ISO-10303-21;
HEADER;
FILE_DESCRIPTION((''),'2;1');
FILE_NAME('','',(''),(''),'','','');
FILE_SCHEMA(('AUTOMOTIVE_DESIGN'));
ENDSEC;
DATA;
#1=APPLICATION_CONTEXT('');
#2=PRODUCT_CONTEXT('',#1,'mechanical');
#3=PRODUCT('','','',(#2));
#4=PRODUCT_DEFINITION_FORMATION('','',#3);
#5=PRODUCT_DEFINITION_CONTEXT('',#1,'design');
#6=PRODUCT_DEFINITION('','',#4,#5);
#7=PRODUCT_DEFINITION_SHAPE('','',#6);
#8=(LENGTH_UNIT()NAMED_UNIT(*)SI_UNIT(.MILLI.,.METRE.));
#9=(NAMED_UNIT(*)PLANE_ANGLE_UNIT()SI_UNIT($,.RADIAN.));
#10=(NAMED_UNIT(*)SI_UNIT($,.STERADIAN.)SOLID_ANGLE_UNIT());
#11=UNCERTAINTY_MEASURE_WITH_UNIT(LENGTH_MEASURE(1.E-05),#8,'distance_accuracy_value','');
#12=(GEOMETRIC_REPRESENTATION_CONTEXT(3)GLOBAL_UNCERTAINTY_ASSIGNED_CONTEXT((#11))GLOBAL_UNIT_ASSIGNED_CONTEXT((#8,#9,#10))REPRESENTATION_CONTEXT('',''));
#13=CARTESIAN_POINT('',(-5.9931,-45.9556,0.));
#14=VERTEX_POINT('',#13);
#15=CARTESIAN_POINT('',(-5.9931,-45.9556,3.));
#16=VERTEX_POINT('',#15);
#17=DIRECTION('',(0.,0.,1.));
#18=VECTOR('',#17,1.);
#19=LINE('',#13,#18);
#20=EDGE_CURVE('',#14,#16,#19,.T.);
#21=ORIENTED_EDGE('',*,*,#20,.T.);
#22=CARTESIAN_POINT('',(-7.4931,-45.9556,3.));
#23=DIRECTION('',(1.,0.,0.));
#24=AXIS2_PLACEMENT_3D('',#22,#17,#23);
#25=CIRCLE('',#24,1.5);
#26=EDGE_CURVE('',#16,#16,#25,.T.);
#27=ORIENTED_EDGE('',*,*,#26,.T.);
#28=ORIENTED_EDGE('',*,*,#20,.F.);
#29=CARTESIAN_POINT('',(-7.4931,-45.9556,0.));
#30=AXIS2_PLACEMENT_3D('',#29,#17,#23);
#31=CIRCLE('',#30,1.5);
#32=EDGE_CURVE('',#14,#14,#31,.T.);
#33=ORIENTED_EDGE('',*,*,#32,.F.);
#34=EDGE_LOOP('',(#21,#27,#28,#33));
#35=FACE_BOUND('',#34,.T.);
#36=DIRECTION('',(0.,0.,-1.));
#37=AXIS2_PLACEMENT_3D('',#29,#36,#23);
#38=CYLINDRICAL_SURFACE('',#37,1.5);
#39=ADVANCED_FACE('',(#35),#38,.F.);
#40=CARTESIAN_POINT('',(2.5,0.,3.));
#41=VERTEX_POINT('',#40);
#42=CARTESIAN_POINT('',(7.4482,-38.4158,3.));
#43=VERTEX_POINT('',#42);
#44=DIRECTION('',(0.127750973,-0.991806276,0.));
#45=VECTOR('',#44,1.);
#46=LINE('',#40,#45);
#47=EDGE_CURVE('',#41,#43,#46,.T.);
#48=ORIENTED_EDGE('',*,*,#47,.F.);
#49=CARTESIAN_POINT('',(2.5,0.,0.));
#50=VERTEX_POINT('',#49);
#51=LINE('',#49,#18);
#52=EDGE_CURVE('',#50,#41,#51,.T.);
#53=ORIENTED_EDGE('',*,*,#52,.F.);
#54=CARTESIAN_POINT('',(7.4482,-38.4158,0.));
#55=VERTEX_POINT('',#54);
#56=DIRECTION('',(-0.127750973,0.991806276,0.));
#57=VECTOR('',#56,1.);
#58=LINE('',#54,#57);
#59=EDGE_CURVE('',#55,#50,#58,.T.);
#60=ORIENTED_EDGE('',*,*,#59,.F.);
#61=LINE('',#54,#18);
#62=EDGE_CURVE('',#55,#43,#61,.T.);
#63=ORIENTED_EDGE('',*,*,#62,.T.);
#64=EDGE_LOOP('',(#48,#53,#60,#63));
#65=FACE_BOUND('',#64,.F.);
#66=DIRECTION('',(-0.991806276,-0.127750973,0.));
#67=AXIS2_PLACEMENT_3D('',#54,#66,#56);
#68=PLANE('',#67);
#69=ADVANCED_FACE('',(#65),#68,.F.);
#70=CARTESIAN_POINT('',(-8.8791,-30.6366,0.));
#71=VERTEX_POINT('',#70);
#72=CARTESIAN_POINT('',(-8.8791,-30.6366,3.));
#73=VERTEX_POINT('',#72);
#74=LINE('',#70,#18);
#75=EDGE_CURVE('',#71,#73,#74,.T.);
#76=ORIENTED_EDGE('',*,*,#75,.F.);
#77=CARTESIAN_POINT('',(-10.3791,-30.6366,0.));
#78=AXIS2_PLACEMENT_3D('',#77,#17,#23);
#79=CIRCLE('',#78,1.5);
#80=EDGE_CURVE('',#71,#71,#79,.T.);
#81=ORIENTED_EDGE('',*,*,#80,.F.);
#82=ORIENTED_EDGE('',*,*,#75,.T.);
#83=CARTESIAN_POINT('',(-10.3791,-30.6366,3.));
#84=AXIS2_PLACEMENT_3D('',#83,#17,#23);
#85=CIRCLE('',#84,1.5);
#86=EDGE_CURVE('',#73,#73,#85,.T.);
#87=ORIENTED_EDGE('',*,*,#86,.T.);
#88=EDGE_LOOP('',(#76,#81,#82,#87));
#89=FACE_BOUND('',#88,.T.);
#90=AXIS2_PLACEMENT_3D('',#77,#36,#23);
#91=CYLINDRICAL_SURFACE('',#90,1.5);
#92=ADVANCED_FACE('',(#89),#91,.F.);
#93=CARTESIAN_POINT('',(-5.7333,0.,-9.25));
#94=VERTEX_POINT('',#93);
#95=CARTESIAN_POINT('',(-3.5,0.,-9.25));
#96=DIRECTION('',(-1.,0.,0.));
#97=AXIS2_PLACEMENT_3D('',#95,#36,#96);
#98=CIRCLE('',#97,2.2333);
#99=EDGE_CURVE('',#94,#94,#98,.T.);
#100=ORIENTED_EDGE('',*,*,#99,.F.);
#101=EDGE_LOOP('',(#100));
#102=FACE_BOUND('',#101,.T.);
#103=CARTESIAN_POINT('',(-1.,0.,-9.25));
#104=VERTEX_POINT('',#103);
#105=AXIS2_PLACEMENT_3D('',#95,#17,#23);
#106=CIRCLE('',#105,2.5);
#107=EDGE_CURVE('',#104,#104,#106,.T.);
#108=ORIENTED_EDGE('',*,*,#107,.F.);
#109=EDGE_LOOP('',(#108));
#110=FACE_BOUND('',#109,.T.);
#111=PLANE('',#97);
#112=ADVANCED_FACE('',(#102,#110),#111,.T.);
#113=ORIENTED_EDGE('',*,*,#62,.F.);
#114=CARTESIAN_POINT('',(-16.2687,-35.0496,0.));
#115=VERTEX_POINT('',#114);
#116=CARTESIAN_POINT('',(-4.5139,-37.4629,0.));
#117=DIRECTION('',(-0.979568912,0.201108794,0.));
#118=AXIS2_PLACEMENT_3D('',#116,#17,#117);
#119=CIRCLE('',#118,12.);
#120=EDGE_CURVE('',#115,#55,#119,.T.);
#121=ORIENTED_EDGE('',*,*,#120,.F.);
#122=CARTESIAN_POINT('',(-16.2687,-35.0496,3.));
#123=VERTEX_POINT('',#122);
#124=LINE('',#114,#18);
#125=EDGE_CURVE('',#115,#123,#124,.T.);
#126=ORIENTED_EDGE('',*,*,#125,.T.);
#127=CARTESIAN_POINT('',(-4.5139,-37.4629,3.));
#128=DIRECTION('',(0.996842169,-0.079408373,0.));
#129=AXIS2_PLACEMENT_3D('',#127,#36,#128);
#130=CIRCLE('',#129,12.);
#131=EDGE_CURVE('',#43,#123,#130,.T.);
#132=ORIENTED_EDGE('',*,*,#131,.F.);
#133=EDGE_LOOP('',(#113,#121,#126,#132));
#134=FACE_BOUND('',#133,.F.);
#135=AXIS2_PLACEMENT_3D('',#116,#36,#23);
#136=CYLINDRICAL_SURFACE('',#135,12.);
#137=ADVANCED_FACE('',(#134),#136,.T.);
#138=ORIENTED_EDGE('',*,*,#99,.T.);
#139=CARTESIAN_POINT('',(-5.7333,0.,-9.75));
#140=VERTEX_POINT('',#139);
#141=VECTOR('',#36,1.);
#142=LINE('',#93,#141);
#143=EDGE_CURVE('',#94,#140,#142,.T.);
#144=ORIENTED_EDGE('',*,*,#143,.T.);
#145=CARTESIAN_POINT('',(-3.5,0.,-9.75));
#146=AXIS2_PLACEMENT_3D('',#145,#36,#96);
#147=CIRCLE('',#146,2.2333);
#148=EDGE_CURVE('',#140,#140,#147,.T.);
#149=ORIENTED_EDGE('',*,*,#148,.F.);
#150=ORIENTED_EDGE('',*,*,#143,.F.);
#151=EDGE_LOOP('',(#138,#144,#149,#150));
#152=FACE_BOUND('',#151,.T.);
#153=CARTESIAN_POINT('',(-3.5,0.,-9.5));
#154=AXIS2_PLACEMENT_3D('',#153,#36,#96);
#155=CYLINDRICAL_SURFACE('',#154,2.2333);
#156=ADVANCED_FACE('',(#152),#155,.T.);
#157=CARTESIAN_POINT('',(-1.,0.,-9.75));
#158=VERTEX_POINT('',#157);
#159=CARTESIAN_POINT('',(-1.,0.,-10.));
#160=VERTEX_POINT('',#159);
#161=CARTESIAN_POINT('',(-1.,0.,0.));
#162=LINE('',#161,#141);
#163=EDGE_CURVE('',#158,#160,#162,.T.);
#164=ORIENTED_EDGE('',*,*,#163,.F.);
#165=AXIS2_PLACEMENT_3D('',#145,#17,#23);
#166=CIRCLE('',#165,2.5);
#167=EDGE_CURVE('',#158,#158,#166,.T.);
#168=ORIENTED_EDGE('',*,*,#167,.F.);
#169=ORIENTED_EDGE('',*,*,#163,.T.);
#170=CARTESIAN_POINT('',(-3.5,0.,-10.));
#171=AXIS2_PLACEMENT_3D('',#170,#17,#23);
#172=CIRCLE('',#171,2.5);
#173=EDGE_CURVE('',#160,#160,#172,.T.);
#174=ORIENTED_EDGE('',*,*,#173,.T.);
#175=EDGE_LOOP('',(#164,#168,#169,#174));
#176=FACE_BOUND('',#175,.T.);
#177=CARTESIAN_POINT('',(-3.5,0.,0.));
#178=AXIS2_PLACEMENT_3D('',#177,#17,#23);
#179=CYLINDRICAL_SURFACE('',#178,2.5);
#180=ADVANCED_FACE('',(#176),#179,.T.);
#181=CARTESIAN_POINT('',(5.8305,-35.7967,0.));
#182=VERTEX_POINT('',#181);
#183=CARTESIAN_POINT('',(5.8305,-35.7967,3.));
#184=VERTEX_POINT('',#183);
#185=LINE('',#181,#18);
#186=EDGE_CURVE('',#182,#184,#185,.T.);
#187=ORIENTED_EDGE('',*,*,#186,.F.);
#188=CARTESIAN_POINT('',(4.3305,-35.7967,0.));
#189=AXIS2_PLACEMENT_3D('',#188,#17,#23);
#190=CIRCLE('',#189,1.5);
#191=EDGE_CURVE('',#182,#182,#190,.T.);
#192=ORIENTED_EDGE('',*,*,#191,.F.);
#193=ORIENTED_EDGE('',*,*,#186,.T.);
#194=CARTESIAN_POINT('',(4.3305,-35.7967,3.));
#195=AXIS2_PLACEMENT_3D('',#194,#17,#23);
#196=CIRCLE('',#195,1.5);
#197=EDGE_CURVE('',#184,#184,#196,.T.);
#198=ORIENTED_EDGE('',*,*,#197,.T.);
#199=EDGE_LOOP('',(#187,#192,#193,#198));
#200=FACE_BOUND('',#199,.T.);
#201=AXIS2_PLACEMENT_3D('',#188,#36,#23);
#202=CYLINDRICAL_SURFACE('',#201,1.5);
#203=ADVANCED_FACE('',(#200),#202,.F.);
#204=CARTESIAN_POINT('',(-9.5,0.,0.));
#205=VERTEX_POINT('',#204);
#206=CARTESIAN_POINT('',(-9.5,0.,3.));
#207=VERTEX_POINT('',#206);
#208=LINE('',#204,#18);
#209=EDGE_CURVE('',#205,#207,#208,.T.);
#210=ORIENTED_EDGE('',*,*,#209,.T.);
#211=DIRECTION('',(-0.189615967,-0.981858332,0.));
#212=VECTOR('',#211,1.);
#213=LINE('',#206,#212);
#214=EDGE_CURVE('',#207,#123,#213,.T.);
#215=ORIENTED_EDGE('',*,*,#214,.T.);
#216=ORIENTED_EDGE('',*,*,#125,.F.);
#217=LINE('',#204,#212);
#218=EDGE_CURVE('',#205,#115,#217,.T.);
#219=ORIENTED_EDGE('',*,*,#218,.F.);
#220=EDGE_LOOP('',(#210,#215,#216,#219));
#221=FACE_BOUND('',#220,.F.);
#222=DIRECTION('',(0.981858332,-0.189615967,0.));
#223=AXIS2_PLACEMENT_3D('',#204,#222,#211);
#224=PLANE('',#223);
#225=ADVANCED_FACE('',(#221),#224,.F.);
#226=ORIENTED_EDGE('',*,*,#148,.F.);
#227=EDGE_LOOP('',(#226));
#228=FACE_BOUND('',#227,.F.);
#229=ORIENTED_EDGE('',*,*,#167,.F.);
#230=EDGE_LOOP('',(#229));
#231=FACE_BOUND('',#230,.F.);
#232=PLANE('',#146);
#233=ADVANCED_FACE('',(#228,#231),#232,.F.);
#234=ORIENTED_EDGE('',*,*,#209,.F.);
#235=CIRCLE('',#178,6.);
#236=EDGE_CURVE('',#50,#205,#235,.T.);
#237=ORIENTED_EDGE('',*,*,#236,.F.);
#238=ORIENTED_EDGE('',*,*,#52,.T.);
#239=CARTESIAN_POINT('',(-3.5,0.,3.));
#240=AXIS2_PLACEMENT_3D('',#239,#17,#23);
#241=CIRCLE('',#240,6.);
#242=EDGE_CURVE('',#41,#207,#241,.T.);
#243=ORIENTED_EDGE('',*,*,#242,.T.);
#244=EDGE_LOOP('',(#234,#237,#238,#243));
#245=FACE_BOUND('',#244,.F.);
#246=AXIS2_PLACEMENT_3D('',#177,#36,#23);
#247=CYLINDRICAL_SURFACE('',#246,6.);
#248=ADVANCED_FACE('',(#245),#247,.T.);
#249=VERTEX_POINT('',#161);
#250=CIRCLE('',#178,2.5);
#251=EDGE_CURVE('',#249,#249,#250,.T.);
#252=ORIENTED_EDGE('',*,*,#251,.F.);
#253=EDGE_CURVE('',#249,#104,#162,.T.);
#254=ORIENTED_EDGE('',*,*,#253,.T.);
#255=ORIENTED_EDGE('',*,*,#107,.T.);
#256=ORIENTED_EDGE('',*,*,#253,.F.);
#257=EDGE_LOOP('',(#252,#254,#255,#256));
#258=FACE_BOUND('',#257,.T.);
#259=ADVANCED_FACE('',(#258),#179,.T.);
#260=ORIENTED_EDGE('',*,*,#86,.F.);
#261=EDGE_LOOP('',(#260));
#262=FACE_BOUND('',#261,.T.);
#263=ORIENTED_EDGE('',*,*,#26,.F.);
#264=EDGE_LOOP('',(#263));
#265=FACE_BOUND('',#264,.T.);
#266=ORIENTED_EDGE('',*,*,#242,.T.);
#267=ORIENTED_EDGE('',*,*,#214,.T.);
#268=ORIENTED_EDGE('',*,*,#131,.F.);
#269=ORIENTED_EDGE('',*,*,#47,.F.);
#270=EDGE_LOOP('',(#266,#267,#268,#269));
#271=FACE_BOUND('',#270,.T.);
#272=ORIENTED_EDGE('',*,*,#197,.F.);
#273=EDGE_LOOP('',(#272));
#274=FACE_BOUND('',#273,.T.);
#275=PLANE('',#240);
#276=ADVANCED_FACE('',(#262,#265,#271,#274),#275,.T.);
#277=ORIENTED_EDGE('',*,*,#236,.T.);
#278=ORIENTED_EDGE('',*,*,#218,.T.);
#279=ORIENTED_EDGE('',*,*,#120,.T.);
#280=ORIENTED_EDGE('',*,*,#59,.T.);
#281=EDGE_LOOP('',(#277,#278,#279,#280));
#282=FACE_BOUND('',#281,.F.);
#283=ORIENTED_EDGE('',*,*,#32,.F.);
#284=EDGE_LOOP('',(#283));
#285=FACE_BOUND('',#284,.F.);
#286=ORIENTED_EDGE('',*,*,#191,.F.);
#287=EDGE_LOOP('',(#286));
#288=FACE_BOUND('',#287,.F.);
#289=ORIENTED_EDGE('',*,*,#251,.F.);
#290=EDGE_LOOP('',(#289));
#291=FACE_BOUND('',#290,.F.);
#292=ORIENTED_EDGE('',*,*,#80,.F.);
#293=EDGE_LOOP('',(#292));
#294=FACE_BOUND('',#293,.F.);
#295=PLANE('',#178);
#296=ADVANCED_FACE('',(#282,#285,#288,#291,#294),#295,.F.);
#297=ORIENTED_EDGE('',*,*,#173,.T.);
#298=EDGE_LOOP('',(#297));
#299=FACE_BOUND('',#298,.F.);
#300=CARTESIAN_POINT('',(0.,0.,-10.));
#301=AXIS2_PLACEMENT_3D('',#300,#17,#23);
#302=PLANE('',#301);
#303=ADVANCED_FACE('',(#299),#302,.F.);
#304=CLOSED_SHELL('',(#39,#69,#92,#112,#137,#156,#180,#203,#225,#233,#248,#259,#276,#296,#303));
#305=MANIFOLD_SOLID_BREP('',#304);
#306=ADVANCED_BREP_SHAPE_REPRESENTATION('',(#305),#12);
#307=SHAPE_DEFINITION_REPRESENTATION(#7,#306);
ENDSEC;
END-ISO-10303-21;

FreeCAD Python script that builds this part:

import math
import FreeCAD as App
import Part
import Sketcher

doc = App.newDocument("Part")
params = doc.addObject("Spreadsheet::Sheet", "Params")
for row, (alias, value) in enumerate([
    ("sketch1_diameter", "5 mm"),
    ("pad1_length", "10 mm"),
    ("sketch2_diameter", "5 mm"),
    ("pocket1_length", "0.5 mm"),
    ("sketch3_radius", "6 mm"),
    ("sketch3_radius2", "12 mm"),
    ("sketch3_diameter", "3 mm"),
    ("sketch3_diameter2", "3 mm"),
    ("sketch3_diameter3", "3 mm"),
    ("pad2_length", "3 mm"),
    ("sketch4_diameter", "5 mm"),
    ("pad3_length", "10 mm"),
], start=1):
    params.set(f"A{row}", alias)
    params.set(f"B{row}", "=" + value)
    params.setAlias(f"B{row}", alias)

body = doc.addObject("PartDesign::Body", "Body")
body.AllowCompound = True

sketch1 = body.newObject("Sketcher::SketchObject", "Sketch")
sketch1.AttachmentSupport = (doc.getObject("XY_Plane"), [""])
sketch1.MapMode = "FlatFace"
sketch1.addGeometry(Part.Circle(App.Vector(-3.5, 0, 0), App.Vector(0, 0, 1), 2.5), False)
sketch1.addConstraint([
    Sketcher.Constraint("PointOnObject", 0, 3, -1),
    Sketcher.Constraint("Diameter", 0, 5.0),
    Sketcher.Constraint("DistanceX", 0, 3, -1, 1, 3.5),
])
sketch1.setExpression("Constraints[1]", "Params.sketch1_diameter")
pad1 = body.newObject("PartDesign::Pad", "Pad")
pad1.Profile = sketch1
pad1.setExpression("Length", "Params.pad1_length")
pad1.Reversed = True

sketch2 = body.newObject("Sketcher::SketchObject", "Sketch001")
sketch2.AttachmentSupport = (doc.getObject("XY_Plane"), [""])
sketch2.MapMode = "FlatFace"
sketch2.AttachmentOffset = App.Placement(App.Vector(0, 0, -9.5), App.Rotation())
sketch2.addGeometry([
    Part.Circle(App.Vector(-3.5, 0, 0), App.Vector(0, 0, 1), 2.5),
    Part.Circle(App.Vector(-3.5, 0, 0), App.Vector(0, 0, 1), 2.2),
], False)
sketch2.addConstraint([
    Sketcher.Constraint("Coincident", 1, 3, 0, 3),
    Sketcher.Constraint("PointOnObject", 0, 3, -1),
    Sketcher.Constraint("Diameter", 0, 5.0),
    Sketcher.Constraint("Diameter", 1, 4.4666),
    Sketcher.Constraint("DistanceX", 0, 3, -1, 1, 3.5),
])
sketch2.setExpression("Constraints[2]", "Params.sketch2_diameter")
pocket1 = body.newObject("PartDesign::Pocket", "Pocket")
pocket1.Profile = sketch2
pocket1.setExpression("Length", "Params.pocket1_length")
pocket1.Midplane = True

sketch3 = body.newObject("Sketcher::SketchObject", "Sketch002")
sketch3.AttachmentSupport = (doc.getObject("XY_Plane"), [""])
sketch3.MapMode = "FlatFace"
sketch3.addGeometry([
    Part.LineSegment(App.Vector(7.4482, -38.4158, 0), App.Vector(2.5, 0, 0)),
    Part.ArcOfCircle(Part.Circle(App.Vector(-3.5, 0, 0), App.Vector(0, 0, 1), 6), math.radians(0), math.radians(180)),
    Part.LineSegment(App.Vector(-9.5, 0, 0), App.Vector(-16.268758, -35.049589, 0)),
    Part.ArcOfCircle(Part.Circle(App.Vector(-4.5139, -37.4629, 0), App.Vector(0, 0, 1), 12), math.radians(168.398194), math.radians(355.44544)),
    Part.Circle(App.Vector(-7.4931, -45.9556, 0), App.Vector(0, 0, 1), 1.5),
    Part.Circle(App.Vector(-10.3791, -30.6366, 0), App.Vector(0, 0, 1), 1.5),
    Part.Circle(App.Vector(4.3305, -35.7967, 0), App.Vector(0, 0, 1), 1.5),
    Part.Circle(App.Vector(-3.5, 0, 0), App.Vector(0, 0, 1), 2.5),
], False)
sketch3.addConstraint([
    Sketcher.Constraint("Coincident", 0, 2, 1, 1),
    Sketcher.Constraint("Coincident", 1, 2, 2, 1),
    Sketcher.Constraint("Coincident", 2, 2, 3, 1),
    Sketcher.Constraint("Coincident", 3, 2, 0, 1),
    Sketcher.Constraint("Coincident", 7, 3, 1, 3),
    Sketcher.Constraint("PointOnObject", 1, 3, -1),
    Sketcher.Constraint("PointOnObject", 0, 2, -1),
    Sketcher.Constraint("PointOnObject", 1, 2, -1),
    Sketcher.Constraint("Radius", 1, 6.0),
    Sketcher.Constraint("Radius", 3, 12.0),
    Sketcher.Constraint("Diameter", 4, 3.0),
    Sketcher.Constraint("Diameter", 5, 3.0),
    Sketcher.Constraint("Diameter", 6, 3.0),
    Sketcher.Constraint("Diameter", 7, 5.0),
    Sketcher.Constraint("DistanceX", 1, 3, -1, 1, 3.5),
    Sketcher.Constraint("DistanceY", 6, 3, 5, 3, 5.16),
    Sketcher.Constraint("DistanceX", 3, 3, -1, 1, 4.514),
    Sketcher.Constraint("DistanceY", 3, 3, -1, 1, 37.463),
    Sketcher.Constraint("DistanceX", 4, 3, -1, 1, 7.493),
    Sketcher.Constraint("DistanceX", 5, 3, -1, 1, 10.379),
    Sketcher.Constraint("DistanceY", 4, 3, 5, 3, 15.319),
    Sketcher.Constraint("DistanceY", 2, 2, 5, 3, 4.413),
    Sketcher.Constraint("DistanceY", 3, 2, 6, 3, 2.619),
    Sketcher.Constraint("DistanceX", 3, 3, 3, 2, 11.962),
    Sketcher.Constraint("DistanceX", -1, 1, 6, 3, 4.3305),
])
sketch3.setExpression("Constraints[8]", "Params.sketch3_radius")
sketch3.setExpression("Constraints[9]", "Params.sketch3_radius2")
sketch3.setExpression("Constraints[10]", "Params.sketch3_diameter")
sketch3.setExpression("Constraints[11]", "Params.sketch3_diameter2")
sketch3.setExpression("Constraints[12]", "Params.sketch3_diameter3")
pad2 = body.newObject("PartDesign::Pad", "Pad001")
pad2.Profile = sketch3
pad2.setExpression("Length", "Params.pad2_length")

sketch4 = body.newObject("Sketcher::SketchObject", "Sketch003")
sketch4.AttachmentSupport = (doc.getObject("XY_Plane"), [""])
sketch4.MapMode = "FlatFace"
sketch4.AttachmentOffset = App.Placement(App.Vector(0, 0, 3), App.Rotation())
sketch4.addGeometry(Part.Circle(App.Vector(-3.5, 0, 0), App.Vector(0, 0, 1), 2.5), False)
sketch4.addConstraint([
    Sketcher.Constraint("PointOnObject", 0, 3, -1),
    Sketcher.Constraint("Diameter", 0, 5.0),
    Sketcher.Constraint("DistanceX", 0, 3, -1, 1, 3.5),
])
sketch4.setExpression("Constraints[1]", "Params.sketch4_diameter")
pad3 = body.newObject("PartDesign::Pad", "Pad002")
pad3.Profile = sketch4
pad3.setExpression("Length", "Params.pad3_length")
pad3.Reversed = True

doc.recompute()
